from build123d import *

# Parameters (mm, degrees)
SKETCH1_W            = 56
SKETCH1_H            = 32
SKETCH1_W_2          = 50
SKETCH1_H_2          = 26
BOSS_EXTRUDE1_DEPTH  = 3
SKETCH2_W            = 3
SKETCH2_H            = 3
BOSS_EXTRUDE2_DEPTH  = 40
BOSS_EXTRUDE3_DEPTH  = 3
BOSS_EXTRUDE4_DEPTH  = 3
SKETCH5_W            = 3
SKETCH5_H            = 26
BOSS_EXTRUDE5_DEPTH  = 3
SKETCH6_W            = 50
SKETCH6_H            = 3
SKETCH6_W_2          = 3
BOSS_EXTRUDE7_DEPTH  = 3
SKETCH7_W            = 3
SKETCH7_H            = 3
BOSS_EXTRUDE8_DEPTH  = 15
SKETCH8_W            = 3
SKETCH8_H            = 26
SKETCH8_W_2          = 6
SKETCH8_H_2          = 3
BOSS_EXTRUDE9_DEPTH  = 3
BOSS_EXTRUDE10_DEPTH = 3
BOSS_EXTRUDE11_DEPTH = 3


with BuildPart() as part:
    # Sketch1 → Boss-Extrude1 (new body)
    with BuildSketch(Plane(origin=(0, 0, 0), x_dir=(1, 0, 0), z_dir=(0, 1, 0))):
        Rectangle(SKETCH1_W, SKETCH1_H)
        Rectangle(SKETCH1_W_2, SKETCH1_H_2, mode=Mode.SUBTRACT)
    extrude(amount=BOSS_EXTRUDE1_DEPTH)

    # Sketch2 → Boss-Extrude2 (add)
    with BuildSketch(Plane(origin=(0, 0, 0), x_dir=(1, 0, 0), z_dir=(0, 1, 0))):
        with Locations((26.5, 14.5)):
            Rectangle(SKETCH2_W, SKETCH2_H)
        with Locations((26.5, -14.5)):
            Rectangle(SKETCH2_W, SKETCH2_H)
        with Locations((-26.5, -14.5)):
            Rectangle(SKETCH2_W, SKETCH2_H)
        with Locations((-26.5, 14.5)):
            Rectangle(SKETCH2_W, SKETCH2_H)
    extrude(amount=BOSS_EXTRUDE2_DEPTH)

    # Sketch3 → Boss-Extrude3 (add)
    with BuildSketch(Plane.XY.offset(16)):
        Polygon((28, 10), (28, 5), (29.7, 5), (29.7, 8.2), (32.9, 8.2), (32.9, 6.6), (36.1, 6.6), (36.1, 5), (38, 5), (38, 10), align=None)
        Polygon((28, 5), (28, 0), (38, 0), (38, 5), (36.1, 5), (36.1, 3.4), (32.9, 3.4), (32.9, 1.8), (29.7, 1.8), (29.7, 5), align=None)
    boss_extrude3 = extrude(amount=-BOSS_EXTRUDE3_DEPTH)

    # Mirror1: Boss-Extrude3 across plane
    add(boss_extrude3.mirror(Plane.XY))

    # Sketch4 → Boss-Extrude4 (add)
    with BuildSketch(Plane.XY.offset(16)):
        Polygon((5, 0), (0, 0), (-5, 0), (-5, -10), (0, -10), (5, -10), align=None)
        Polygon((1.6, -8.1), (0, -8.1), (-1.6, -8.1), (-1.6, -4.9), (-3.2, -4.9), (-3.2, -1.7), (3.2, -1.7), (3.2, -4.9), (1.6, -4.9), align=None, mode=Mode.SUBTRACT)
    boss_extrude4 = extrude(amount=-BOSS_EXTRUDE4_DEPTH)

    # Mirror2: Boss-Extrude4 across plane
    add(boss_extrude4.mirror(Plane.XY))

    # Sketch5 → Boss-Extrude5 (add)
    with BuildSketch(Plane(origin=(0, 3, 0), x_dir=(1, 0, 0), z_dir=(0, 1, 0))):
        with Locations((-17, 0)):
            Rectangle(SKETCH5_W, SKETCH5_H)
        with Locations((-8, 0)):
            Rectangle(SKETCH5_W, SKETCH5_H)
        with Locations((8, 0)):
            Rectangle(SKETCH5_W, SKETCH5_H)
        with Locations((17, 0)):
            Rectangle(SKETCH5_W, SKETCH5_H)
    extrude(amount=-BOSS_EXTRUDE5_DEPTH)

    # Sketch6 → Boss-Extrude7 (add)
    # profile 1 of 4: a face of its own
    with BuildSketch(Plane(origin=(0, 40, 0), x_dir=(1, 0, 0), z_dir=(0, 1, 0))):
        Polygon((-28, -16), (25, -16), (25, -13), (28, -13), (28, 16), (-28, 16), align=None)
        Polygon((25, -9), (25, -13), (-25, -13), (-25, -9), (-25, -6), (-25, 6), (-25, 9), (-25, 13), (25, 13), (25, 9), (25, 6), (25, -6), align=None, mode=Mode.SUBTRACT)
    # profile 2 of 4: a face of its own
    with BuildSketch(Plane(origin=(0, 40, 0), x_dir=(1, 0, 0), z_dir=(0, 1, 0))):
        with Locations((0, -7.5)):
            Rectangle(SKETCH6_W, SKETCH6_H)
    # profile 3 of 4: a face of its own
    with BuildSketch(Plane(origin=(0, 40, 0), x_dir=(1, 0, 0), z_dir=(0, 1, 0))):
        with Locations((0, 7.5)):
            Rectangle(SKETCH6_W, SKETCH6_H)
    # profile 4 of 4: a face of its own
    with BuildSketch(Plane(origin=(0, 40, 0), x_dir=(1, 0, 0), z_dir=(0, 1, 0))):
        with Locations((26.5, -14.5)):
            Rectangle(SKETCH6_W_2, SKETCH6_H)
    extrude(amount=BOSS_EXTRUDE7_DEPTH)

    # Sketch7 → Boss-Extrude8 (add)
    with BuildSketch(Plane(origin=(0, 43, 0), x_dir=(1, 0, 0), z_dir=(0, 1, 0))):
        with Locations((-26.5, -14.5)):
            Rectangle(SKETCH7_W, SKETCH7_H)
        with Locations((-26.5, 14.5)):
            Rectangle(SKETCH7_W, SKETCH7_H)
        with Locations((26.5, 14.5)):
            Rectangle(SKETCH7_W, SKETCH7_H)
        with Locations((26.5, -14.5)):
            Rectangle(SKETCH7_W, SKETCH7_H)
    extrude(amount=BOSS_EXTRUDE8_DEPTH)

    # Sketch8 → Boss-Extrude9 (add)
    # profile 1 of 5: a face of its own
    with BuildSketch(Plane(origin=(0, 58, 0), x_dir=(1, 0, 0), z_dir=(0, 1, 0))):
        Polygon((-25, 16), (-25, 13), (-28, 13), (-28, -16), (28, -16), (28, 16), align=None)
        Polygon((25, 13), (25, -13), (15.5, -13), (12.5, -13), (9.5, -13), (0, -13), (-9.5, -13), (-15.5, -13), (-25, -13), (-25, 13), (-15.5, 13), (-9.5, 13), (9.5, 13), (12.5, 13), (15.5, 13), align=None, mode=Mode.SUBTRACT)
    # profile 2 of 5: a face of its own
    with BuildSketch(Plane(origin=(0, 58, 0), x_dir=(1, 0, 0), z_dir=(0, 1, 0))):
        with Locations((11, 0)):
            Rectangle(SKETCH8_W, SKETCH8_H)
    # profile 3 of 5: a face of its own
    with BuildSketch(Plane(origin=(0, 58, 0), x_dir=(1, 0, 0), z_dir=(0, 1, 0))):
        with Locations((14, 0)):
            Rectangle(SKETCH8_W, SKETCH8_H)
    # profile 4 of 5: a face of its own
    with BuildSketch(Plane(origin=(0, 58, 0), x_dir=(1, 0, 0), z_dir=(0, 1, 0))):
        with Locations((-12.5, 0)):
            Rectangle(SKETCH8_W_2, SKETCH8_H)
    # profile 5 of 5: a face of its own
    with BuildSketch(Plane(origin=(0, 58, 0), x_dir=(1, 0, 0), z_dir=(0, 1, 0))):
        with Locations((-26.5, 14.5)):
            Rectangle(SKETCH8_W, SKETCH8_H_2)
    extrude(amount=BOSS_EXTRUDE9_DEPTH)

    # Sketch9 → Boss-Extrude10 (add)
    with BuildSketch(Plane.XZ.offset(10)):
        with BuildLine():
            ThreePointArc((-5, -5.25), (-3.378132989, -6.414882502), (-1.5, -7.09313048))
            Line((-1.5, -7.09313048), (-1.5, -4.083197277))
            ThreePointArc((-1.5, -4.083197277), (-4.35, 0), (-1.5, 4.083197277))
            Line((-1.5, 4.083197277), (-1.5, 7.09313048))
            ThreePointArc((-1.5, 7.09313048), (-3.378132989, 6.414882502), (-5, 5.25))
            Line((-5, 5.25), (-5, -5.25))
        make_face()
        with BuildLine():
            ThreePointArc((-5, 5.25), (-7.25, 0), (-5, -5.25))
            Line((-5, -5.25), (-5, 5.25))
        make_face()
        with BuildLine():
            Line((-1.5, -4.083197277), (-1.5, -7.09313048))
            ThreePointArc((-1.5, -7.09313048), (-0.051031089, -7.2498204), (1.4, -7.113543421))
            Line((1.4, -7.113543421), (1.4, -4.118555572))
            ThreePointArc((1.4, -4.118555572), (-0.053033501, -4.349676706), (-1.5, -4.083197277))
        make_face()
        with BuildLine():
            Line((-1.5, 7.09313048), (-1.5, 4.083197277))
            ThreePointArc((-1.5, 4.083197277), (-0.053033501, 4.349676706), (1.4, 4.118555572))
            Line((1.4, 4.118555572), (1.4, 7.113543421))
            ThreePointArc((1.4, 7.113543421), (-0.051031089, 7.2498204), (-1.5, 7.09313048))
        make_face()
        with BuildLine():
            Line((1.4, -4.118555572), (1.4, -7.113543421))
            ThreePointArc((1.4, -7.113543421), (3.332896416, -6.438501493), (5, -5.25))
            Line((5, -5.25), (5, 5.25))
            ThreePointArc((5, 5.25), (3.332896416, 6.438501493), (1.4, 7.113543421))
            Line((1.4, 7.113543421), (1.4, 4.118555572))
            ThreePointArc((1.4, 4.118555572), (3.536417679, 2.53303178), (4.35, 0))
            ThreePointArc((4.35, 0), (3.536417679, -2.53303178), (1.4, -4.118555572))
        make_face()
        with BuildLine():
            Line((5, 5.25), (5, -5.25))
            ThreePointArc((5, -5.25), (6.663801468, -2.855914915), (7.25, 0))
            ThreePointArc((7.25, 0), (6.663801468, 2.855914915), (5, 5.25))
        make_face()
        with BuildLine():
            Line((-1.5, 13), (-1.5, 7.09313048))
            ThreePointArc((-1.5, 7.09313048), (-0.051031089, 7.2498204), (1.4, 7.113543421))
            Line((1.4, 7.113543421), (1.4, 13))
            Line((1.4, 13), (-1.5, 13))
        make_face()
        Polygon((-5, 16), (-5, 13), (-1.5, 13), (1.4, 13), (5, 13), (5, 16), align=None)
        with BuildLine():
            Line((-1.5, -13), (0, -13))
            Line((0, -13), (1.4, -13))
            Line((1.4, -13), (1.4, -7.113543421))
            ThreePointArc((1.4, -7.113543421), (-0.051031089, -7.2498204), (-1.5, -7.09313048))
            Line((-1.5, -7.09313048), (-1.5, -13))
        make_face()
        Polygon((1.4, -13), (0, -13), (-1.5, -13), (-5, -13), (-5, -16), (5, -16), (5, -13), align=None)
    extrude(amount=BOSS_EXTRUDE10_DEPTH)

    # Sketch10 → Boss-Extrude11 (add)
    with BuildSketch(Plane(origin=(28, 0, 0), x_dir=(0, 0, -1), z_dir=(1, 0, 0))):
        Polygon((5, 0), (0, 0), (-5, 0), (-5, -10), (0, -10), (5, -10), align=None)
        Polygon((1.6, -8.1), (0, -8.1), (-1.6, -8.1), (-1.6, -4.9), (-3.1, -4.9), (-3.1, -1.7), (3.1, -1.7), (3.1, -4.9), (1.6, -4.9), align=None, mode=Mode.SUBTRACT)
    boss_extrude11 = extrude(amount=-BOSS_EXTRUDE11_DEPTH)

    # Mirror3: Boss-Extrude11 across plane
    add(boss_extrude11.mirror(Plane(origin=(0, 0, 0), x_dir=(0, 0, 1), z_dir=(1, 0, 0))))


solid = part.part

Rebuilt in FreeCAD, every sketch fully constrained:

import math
import FreeCAD as App
import Part
import Sketcher

V = App.Vector

doc = App.newDocument("Part")
params = doc.addObject("Spreadsheet::Sheet", "Params")
for row, (alias, value) in enumerate([
    ("sketch1_width", "56 mm"),
    ("sketch1_width2", "50 mm"),
    ("sketch1_height", "32 mm"),
    ("sketch1_height2", "26 mm"),
    ("pad1_length", "3 mm"),
    ("sketch2_width", "3 mm"),
    ("pad2_length", "40 mm"),
    ("sketch3_width", "10 mm"),
    ("sketch3_width2", "3.2 mm"),
    ("sketch3_height", "1.6 mm"),
    ("pad3_length", "3 mm"),
    ("sketch4_width", "10 mm"),
    ("sketch4_width2", "3.2 mm"),
    ("sketch4_width3", "1.6 mm"),
    ("pad4_length", "3 mm"),
    ("sketch5_width", "3 mm"),
    ("sketch5_height", "26 mm"),
    ("pad5_length", "3 mm"),
    ("sketch6_width", "56 mm"),
    ("sketch6_width2", "50 mm"),
    ("sketch6_height", "32 mm"),
    ("sketch6_height2", "4 mm"),
    ("sketch6_height3", "12 mm"),
    ("pad6_length", "3 mm"),
    ("sketch7_width", "3 mm"),
    ("pad7_length", "15 mm"),
    ("sketch8_width", "56 mm"),
    ("sketch8_width2", "19 mm"),
    ("sketch8_height", "32 mm"),
    ("sketch8_height2", "26 mm"),
    ("sketch8_width3", "9.5 mm"),
    ("pad8_length", "3 mm"),
    ("sketch9_width", "10 mm"),
    ("sketch9_height", "3 mm"),
    ("sketch9_radius", "7.25 mm"),
    ("sketch9_radius2", "4.35 mm"),
    ("sketch9_width2", "3.5 mm"),
    ("pad9_length", "3 mm"),
    ("sketch10_width", "10 mm"),
    ("sketch10_width2", "3.2 mm"),
    ("sketch10_height", "1.5 mm"),
    ("pad10_length", "3 mm"),
], start=1):
    params.set(f"A{row}", alias)
    params.set(f"B{row}", "=" + value)
    params.setAlias(f"B{row}", alias)

body = doc.addObject("PartDesign::Body", "Body")

sketch1 = body.newObject("Sketcher::SketchObject", "Sketch")
sketch1.AttachmentSupport = (doc.getObject("XZ_Plane"), [""])
sketch1.MapMode = "FlatFace"
sketch1.addGeometry([
    Part.LineSegment(V(-28, -16, 0), V(-28, 16, 0)),
    Part.LineSegment(V(-28, 16, 0), V(28, 16, 0)),
    Part.LineSegment(V(28, 16, 0), V(28, -16, 0)),
    Part.LineSegment(V(28, -16, 0), V(-28, -16, 0)),
    Part.LineSegment(V(25, 13, 0), V(-25, 13, 0)),
    Part.LineSegment(V(-25, 13, 0), V(-25, -13, 0)),
    Part.LineSegment(V(-25, -13, 0), V(25, -13, 0)),
    Part.LineSegment(V(25, -13, 0), V(25, 13, 0)),
], False)
sketch1.addConstraint([
    Sketcher.Constraint("Coincident", 0, 2, 1, 1),
    Sketcher.Constraint("Coincident", 1, 2, 2, 1),
    Sketcher.Constraint("Coincident", 2, 2, 3, 1),
    Sketcher.Constraint("Coincident", 3, 2, 0, 1),
    Sketcher.Constraint("Coincident", 4, 2, 5, 1),
    Sketcher.Constraint("Coincident", 5, 2, 6, 1),
    Sketcher.Constraint("Coincident", 6, 2, 7, 1),
    Sketcher.Constraint("Coincident", 7, 2, 4, 1),
    Sketcher.Constraint("Vertical", 0),
    Sketcher.Constraint("Horizontal", 1),
    Sketcher.Constraint("Vertical", 2),
    Sketcher.Constraint("Horizontal", 3),
    Sketcher.Constraint("Horizontal", 4),
    Sketcher.Constraint("Vertical", 5),
    Sketcher.Constraint("Horizontal", 6),
    Sketcher.Constraint("Vertical", 7),
    Sketcher.Constraint("Symmetric", 0, 2, 2, 2, -1, 1),
    Sketcher.Constraint("Symmetric", 4, 2, 6, 2, -1, 1),
    Sketcher.Constraint("DistanceX", 1, 1, 1, 2, 56.0),
    Sketcher.Constraint("DistanceX", 4, 2, 4, 1, 50.0),
    Sketcher.Constraint("DistanceY", 0, 1, 0, 2, 32.0),
    Sketcher.Constraint("DistanceY", 5, 2, 5, 1, 26.0),
])
sketch1.setExpression("Constraints[18]", "Params.sketch1_width")
sketch1.setExpression("Constraints[19]", "Params.sketch1_width2")
sketch1.setExpression("Constraints[20]", "Params.sketch1_height")
sketch1.setExpression("Constraints[21]", "Params.sketch1_height2")
pad1 = body.newObject("PartDesign::Pad", "Pad")
pad1.Profile = sketch1
pad1.setExpression("Length", "Params.pad1_length")
pad1.Reversed = True

sketch2 = body.newObject("Sketcher::SketchObject", "Sketch001")
sketch2.AttachmentSupport = (doc.getObject("XZ_Plane"), [""])
sketch2.MapMode = "FlatFace"
sketch2.addGeometry([
    Part.LineSegment(V(25, -16, 0), V(25, -13, 0)),
    Part.LineSegment(V(25, -13, 0), V(28, -13, 0)),
    Part.LineSegment(V(28, -13, 0), V(28, -16, 0)),
    Part.LineSegment(V(28, -16, 0), V(25, -16, 0)),
    Part.LineSegment(V(25, 13, 0), V(25, 16, 0)),
    Part.LineSegment(V(25, 16, 0), V(28, 16, 0)),
    Part.LineSegment(V(28, 16, 0), V(28, 13, 0)),
    Part.LineSegment(V(28, 13, 0), V(25, 13, 0)),
    Part.LineSegment(V(-28, 13, 0), V(-28, 16, 0)),
    Part.LineSegment(V(-28, 16, 0), V(-25, 16, 0)),
    Part.LineSegment(V(-25, 16, 0), V(-25, 13, 0)),
    Part.LineSegment(V(-25, 13, 0), V(-28, 13, 0)),
    Part.LineSegment(V(-28, -16, 0), V(-28, -13, 0)),
    Part.LineSegment(V(-28, -13, 0), V(-25, -13, 0)),
    Part.LineSegment(V(-25, -13, 0), V(-25, -16, 0)),
    Part.LineSegment(V(-25, -16, 0), V(-28, -16, 0)),
], False)
sketch2.addConstraint([
    Sketcher.Constraint("Coincident", 0, 2, 1, 1),
    Sketcher.Constraint("Coincident", 1, 2, 2, 1),
    Sketcher.Constraint("Coincident", 2, 2, 3, 1),
    Sketcher.Constraint("Coincident", 3, 2, 0, 1),
    Sketcher.Constraint("Coincident", 4, 2, 5, 1),
    Sketcher.Constraint("Coincident", 5, 2, 6, 1),
    Sketcher.Constraint("Coincident", 6, 2, 7, 1),
    Sketcher.Constraint("Coincident", 7, 2, 4, 1),
    Sketcher.Constraint("Coincident", 8, 2, 9, 1),
    Sketcher.Constraint("Coincident", 9, 2, 10, 1),
    Sketcher.Constraint("Coincident", 10, 2, 11, 1),
    Sketcher.Constraint("Coincident", 11, 2, 8, 1),
    Sketcher.Constraint("Coincident", 12, 2, 13, 1),
    Sketcher.Constraint("Coincident", 13, 2, 14, 1),
    Sketcher.Constraint("Coincident", 14, 2, 15, 1),
    Sketcher.Constraint("Coincident", 15, 2, 12, 1),
    Sketcher.Constraint("Vertical", 0),
    Sketcher.Constraint("Horizontal", 1),
    Sketcher.Constraint("Vertical", 2),
    Sketcher.Constraint("Horizontal", 3),
    Sketcher.Constraint("Vertical", 4),
    Sketcher.Constraint("Horizontal", 5),
    Sketcher.Constraint("Vertical", 6),
    Sketcher.Constraint("Horizontal", 7),
    Sketcher.Constraint("Vertical", 8),
    Sketcher.Constraint("Horizontal", 9),
    Sketcher.Constraint("Vertical", 10),
    Sketcher.Constraint("Horizontal", 11),
    Sketcher.Constraint("Vertical", 12),
    Sketcher.Constraint("Horizontal", 13),
    Sketcher.Constraint("Vertical", 14),
    Sketcher.Constraint("Horizontal", 15),
    Sketcher.Constraint("Symmetric", 2, 2, 8, 2, -1, 1),
    Sketcher.Constraint("Symmetric", 0, 2, 10, 2, -1, 1),
    Sketcher.Constraint("Symmetric", 6, 2, 12, 2, -1, 1),
    Sketcher.Constraint("Symmetric", 4, 2, 14, 2, -1, 1),
    Sketcher.Constraint("Symmetric", 5, 2, 8, 2, -2),
    Sketcher.Constraint("Symmetric", 7, 2, 10, 2, -2),
    Sketcher.Constraint("Equal", 15, 0),
    Sketcher.Constraint("DistanceX", 1, 1, 1, 2, 3.0),
    Sketcher.Constraint("DistanceX", -1, 1, 0, 2, 25.0),
    Sketcher.Constraint("DistanceY", 0, 2, -1, 1, 13.0),
])
sketch2.setExpression("Constraints[39]", "Params.sketch2_width")
pad2 = body.newObject("PartDesign::Pad", "Pad001")
pad2.Profile = sketch2
pad2.setExpression("Length", "Params.pad2_length")
pad2.Reversed = True

sketch3 = body.newObject("Sketcher::SketchObject", "Sketch002")
sketch3.AttachmentSupport = (doc.getObject("XY_Plane"), [""])
sketch3.MapMode = "FlatFace"
sketch3.AttachmentOffset = App.Placement(V(0, 0, 16), App.Rotation())
sketch3.addGeometry([
    Part.LineSegment(V(28, 10, 0), V(28, 0, 0)),
    Part.LineSegment(V(28, 0, 0), V(38, 0, 0)),
    Part.LineSegment(V(38, 0, 0), V(38, 10, 0)),
    Part.LineSegment(V(38, 10, 0), V(28, 10, 0)),
    Part.LineSegment(V(29.7, 8.2, 0), V(32.9, 8.2, 0)),
    Part.LineSegment(V(32.9, 8.2, 0), V(32.9, 6.6, 0)),
    Part.LineSegment(V(32.9, 6.6, 0), V(36.1, 6.6, 0)),
    Part.LineSegment(V(36.1, 6.6, 0), V(36.1, 3.4, 0)),
    Part.LineSegment(V(36.1, 3.4, 0), V(32.9, 3.4, 0)),
    Part.LineSegment(V(32.9, 3.4, 0), V(32.9, 1.8, 0)),
    Part.LineSegment(V(32.9, 1.8, 0), V(29.7, 1.8, 0)),
    Part.LineSegment(V(29.7, 1.8, 0), V(29.7, 8.2, 0)),
], False)
sketch3.addConstraint([
    Sketcher.Constraint("Coincident", 0, 2, 1, 1),
    Sketcher.Constraint("Coincident", 1, 2, 2, 1),
    Sketcher.Constraint("Coincident", 2, 2, 3, 1),
    Sketcher.Constraint("Coincident", 3, 2, 0, 1),
    Sketcher.Constraint("Coincident", 4, 2, 5, 1),
    Sketcher.Constraint("Coincident", 5, 2, 6, 1),
    Sketcher.Constraint("Coincident", 6, 2, 7, 1),
    Sketcher.Constraint("Coincident", 7, 2, 8, 1),
    Sketcher.Constraint("Coincident", 8, 2, 9, 1),
    Sketcher.Constraint("Coincident", 9, 2, 10, 1),
    Sketcher.Constraint("Coincident", 10, 2, 11, 1),
    Sketcher.Constraint("Coincident", 11, 2, 4, 1),
    Sketcher.Constraint("Vertical", 0),
    Sketcher.Constraint("Horizontal", 1),
    Sketcher.Constraint("Vertical", 2),
    Sketcher.Constraint("Horizontal", 3),
    Sketcher.Constraint("Horizontal", 4),
    Sketcher.Constraint("Vertical", 5),
    Sketcher.Constraint("Horizontal", 6),
    Sketcher.Constraint("Vertical", 7),
    Sketcher.Constraint("Horizontal", 8),
    Sketcher.Constraint("Vertical", 9),
    Sketcher.Constraint("Horizontal", 10),
    Sketcher.Constraint("Vertical", 11),
    Sketcher.Constraint("PointOnObject", 0, 2, -1),
    Sketcher.Constraint("Vertical", 5, 2, 8, 2),
    Sketcher.Constraint("Equal", 4, 6),
    Sketcher.Constraint("Equal", 3, 0),
    Sketcher.Constraint("Equal", 10, 7),
    Sketcher.Constraint("Equal", 5, 9),
    Sketcher.Constraint("DistanceX", 1, 1, 1, 2, 10.0),
    Sketcher.Constraint("DistanceX", 4, 1, 4, 2, 3.2),
    Sketcher.Constraint("DistanceY", 5, 2, 5, 1, 1.6),
    Sketcher.Constraint("DistanceX", -1, 1, 0, 2, 28.0),
    Sketcher.Constraint("DistanceX", -1, 1, 4, 2, 32.9),
    Sketcher.Constraint("DistanceY", -1, 1, 4, 2, 8.2),
])
sketch3.setExpression("Constraints[30]", "Params.sketch3_width")
sketch3.setExpression("Constraints[31]", "Params.sketch3_width2")
sketch3.setExpression("Constraints[32]", "Params.sketch3_height")
pad3 = body.newObject("PartDesign::Pad", "Pad002")
pad3.Profile = sketch3
pad3.setExpression("Length", "Params.pad3_length")
pad3.Reversed = True
doc.recompute()

mirrored = body.newObject("PartDesign::Mirrored", "Mirrored")
mirrored.Originals = [pad3]
mirrored.MirrorPlane = (doc.getObject("XY_Plane"), [""])
body.Tip = mirrored

sketch4 = body.newObject("Sketcher::SketchObject", "Sketch003")
sketch4.AttachmentSupport = (doc.getObject("XY_Plane"), [""])
sketch4.MapMode = "FlatFace"
sketch4.AttachmentOffset = App.Placement(V(0, 0, 16), App.Rotation())
sketch4.addGeometry([
    Part.LineSegment(V(5, 0, 0), V(-5, 0, 0)),
    Part.LineSegment(V(-5, 0, 0), V(-5, -10, 0)),
    Part.LineSegment(V(-5, -10, 0), V(5, -10, 0)),
    Part.LineSegment(V(5, -10, 0), V(5, 0, 0)),
    Part.LineSegment(V(1.6, -4.9, 0), V(1.6, -8.1, 0)),
    Part.LineSegment(V(1.6, -8.1, 0), V(-1.6, -8.1, 0)),
    Part.LineSegment(V(-1.6, -8.1, 0), V(-1.6, -4.9, 0)),
    Part.LineSegment(V(-1.6, -4.9, 0), V(-3.2, -4.9, 0)),
    Part.LineSegment(V(-3.2, -4.9, 0), V(-3.2, -1.7, 0)),
    Part.LineSegment(V(-3.2, -1.7, 0), V(3.2, -1.7, 0)),
    Part.LineSegment(V(3.2, -1.7, 0), V(3.2, -4.9, 0)),
    Part.LineSegment(V(3.2, -4.9, 0), V(1.6, -4.9, 0)),
], False)
sketch4.addConstraint([
    Sketcher.Constraint("Coincident", 0, 2, 1, 1),
    Sketcher.Constraint("Coincident", 1, 2, 2, 1),
    Sketcher.Constraint("Coincident", 2, 2, 3, 1),
    Sketcher.Constraint("Coincident", 3, 2, 0, 1),
    Sketcher.Constraint("Coincident", 4, 2, 5, 1),
    Sketcher.Constraint("Coincident", 5, 2, 6, 1),
    Sketcher.Constraint("Coincident", 6, 2, 7, 1),
    Sketcher.Constraint("Coincident", 7, 2, 8, 1),
    Sketcher.Constraint("Coincident", 8, 2, 9, 1),
    Sketcher.Constraint("Coincident", 9, 2, 10, 1),
    Sketcher.Constraint("Coincident", 10, 2, 11, 1),
    Sketcher.Constraint("Coincident", 11, 2, 4, 1),
    Sketcher.Constraint("Horizontal", 0),
    Sketcher.Constraint("Vertical", 1),
    Sketcher.Constraint("Horizontal", 2),
    Sketcher.Constraint("Vertical", 3),
    Sketcher.Constraint("Vertical", 4),
    Sketcher.Constraint("Horizontal", 5),
    Sketcher.Constraint("Vertical", 6),
    Sketcher.Constraint("Horizontal", 7),
    Sketcher.Constraint("Vertical", 8),
    Sketcher.Constraint("Horizontal", 9),
    Sketcher.Constraint("Vertical", 10),
    Sketcher.Constraint("Horizontal", 11),
    Sketcher.Constraint("Symmetric", 0, 2, 3, 2, -1, 1),
    Sketcher.Constraint("Symmetric", 7, 2, 10, 2, -2),
    Sketcher.Constraint("Equal", 7, 11),
    Sketcher.Constraint("Equal", 2, 1),
    Sketcher.Constraint("Equal", 5, 4),
    Sketcher.Constraint("Equal", 6, 8),
    Sketcher.Constraint("DistanceX", 0, 2, 0, 1, 10.0),
    Sketcher.Constraint("DistanceX", 5, 2, 5, 1, 3.2),
    Sketcher.Constraint("DistanceX", 7, 2, 7, 1, 1.6),
    Sketcher.Constraint("DistanceY", 4, 2, -1, 1, 8.1),
])
sketch4.setExpression("Constraints[30]", "Params.sketch4_width")
sketch4.setExpression("Constraints[31]", "Params.sketch4_width2")
sketch4.setExpression("Constraints[32]", "Params.sketch4_width3")
pad4 = body.newObject("PartDesign::Pad", "Pad003")
pad4.Profile = sketch4
pad4.setExpression("Length", "Params.pad4_length")
pad4.Reversed = True
doc.recompute()

mirrored2 = body.newObject("PartDesign::Mirrored", "Mirrored001")
mirrored2.Originals = [pad4]
mirrored2.MirrorPlane = (doc.getObject("XY_Plane"), [""])
body.Tip = mirrored2

sketch5 = body.newObject("Sketcher::SketchObject", "Sketch004")
sketch5.AttachmentSupport = (doc.getObject("XZ_Plane"), [""])
sketch5.MapMode = "FlatFace"
sketch5.AttachmentOffset = App.Placement(V(0, 0, -3), App.Rotation())
sketch5.addGeometry([
    Part.LineSegment(V(-18.5, -13, 0), V(-18.5, 13, 0)),
    Part.LineSegment(V(-18.5, 13, 0), V(-15.5, 13, 0)),
    Part.LineSegment(V(-15.5, 13, 0), V(-15.5, -13, 0)),
    Part.LineSegment(V(-15.5, -13, 0), V(-18.5, -13, 0)),
    Part.LineSegment(V(-9.5, -13, 0), V(-9.5, 13, 0)),
    Part.LineSegment(V(-9.5, 13, 0), V(-6.5, 13, 0)),
    Part.LineSegment(V(-6.5, 13, 0), V(-6.5, -13, 0)),
    Part.LineSegment(V(-6.5, -13, 0), V(-9.5, -13, 0)),
    Part.LineSegment(V(6.5, -13, 0), V(6.5, 13, 0)),
    Part.LineSegment(V(6.5, 13, 0), V(9.5, 13, 0)),
    Part.LineSegment(V(9.5, 13, 0), V(9.5, -13, 0)),
    Part.LineSegment(V(9.5, -13, 0), V(6.5, -13, 0)),
    Part.LineSegment(V(15.5, -13, 0), V(15.5, 13, 0)),
    Part.LineSegment(V(15.5, 13, 0), V(18.5, 13, 0)),
    Part.LineSegment(V(18.5, 13, 0), V(18.5, -13, 0)),
    Part.LineSegment(V(18.5, -13, 0), V(15.5, -13, 0)),
], False)
sketch5.addConstraint([
    Sketcher.Constraint("Coincident", 0, 2, 1, 1),
    Sketcher.Constraint("Coincident", 1, 2, 2, 1),
    Sketcher.Constraint("Coincident", 2, 2, 3, 1),
    Sketcher.Constraint("Coincident", 3, 2, 0, 1),
    Sketcher.Constraint("Coincident", 4, 2, 5, 1),
    Sketcher.Constraint("Coincident", 5, 2, 6, 1),
    Sketcher.Constraint("Coincident", 6, 2, 7, 1),
    Sketcher.Constraint("Coincident", 7, 2, 4, 1),
    Sketcher.Constraint("Coincident", 8, 2, 9, 1),
    Sketcher.Constraint("Coincident", 9, 2, 10, 1),
    Sketcher.Constraint("Coincident", 10, 2, 11, 1),
    Sketcher.Constraint("Coincident", 11, 2, 8, 1),
    Sketcher.Constraint("Coincident", 12, 2, 13, 1),
    Sketcher.Constraint("Coincident", 13, 2, 14, 1),
    Sketcher.Constraint("Coincident", 14, 2, 15, 1),
    Sketcher.Constraint("Coincident", 15, 2, 12, 1),
    Sketcher.Constraint("Vertical", 0),
    Sketcher.Constraint("Horizontal", 1),
    Sketcher.Constraint("Vertical", 2),
    Sketcher.Constraint("Horizontal", 3),
    Sketcher.Constraint("Vertical", 4),
    Sketcher.Constraint("Horizontal", 5),
    Sketcher.Constraint("Vertical", 6),
    Sketcher.Constraint("Horizontal", 7),
    Sketcher.Constraint("Vertical", 8),
    Sketcher.Constraint("Horizontal", 9),
    Sketcher.Constraint("Vertical", 10),
    Sketcher.Constraint("Horizontal", 11),
    Sketcher.Constraint("Vertical", 12),
    Sketcher.Constraint("Horizontal", 13),
    Sketcher.Constraint("Vertical", 14),
    Sketcher.Constraint("Horizontal", 15),
    Sketcher.Constraint("Symmetric", 6, 2, 8, 2, -1, 1),
    Sketcher.Constraint("Symmetric", 4, 2, 10, 2, -1, 1),
    Sketcher.Constraint("Symmetric", 2, 2, 12, 2, -1, 1),
    Sketcher.Constraint("Symmetric", 0, 2, 14, 2, -1, 1),
    Sketcher.Constraint("Horizontal", 1, 2, 4, 2),
    Sketcher.Constraint("Horizontal", 3, 2, 6, 2),
    Sketcher.Constraint("Horizontal", 5, 2, 8, 2),
    Sketcher.Constraint("Equal", 3, 5),
    Sketcher.Constraint("DistanceX", 1, 1, 1, 2, 3.0),
    Sketcher.Constraint("DistanceY", 0, 1, 0, 2, 26.0),
    Sketcher.Constraint("DistanceX", 1, 2, 4, 2, 6.0),
    Sketcher.Constraint("DistanceX", 5, 2, 8, 2, 13.0),
])
sketch5.setExpression("Constraints[40]", "Params.sketch5_width")
sketch5.setExpression("Constraints[41]", "Params.sketch5_height")
pad5 = body.newObject("PartDesign::Pad", "Pad004")
pad5.Profile = sketch5
pad5.setExpression("Length", "Params.pad5_length")

sketch6 = body.newObject("Sketcher::SketchObject", "Sketch005")
sketch6.AttachmentSupport = (doc.getObject("XZ_Plane"), [""])
sketch6.MapMode = "FlatFace"
sketch6.AttachmentOffset = App.Placement(V(0, 0, -40), App.Rotation())
sketch6.addGeometry([
    Part.LineSegment(V(28, -16, 0), V(-28, -16, 0)),
    Part.LineSegment(V(-28, -16, 0), V(-28, 16, 0)),
    Part.LineSegment(V(-28, 16, 0), V(28, 16, 0)),
    Part.LineSegment(V(28, 16, 0), V(28, -16, 0)),
    Part.LineSegment(V(25, 9, 0), V(25, 13, 0)),
    Part.LineSegment(V(25, 13, 0), V(-25, 13, 0)),
    Part.LineSegment(V(-25, 13, 0), V(-25, 9, 0)),
    Part.LineSegment(V(-25, 9, 0), V(25, 9, 0)),
    Part.LineSegment(V(25, -6, 0), V(25, 6, 0)),
    Part.LineSegment(V(25, 6, 0), V(-25, 6, 0)),
    Part.LineSegment(V(-25, 6, 0), V(-25, -6, 0)),
    Part.LineSegment(V(-25, -6, 0), V(25, -6, 0)),
    Part.LineSegment(V(25, -13, 0), V(25, -9, 0)),
    Part.LineSegment(V(25, -9, 0), V(-25, -9, 0)),
    Part.LineSegment(V(-25, -9, 0), V(-25, -13, 0)),
    Part.LineSegment(V(-25, -13, 0), V(25, -13, 0)),
], False)
sketch6.addConstraint([
    Sketcher.Constraint("Coincident", 0, 2, 1, 1),
    Sketcher.Constraint("Coincident", 1, 2, 2, 1),
    Sketcher.Constraint("Coincident", 2, 2, 3, 1),
    Sketcher.Constraint("Coincident", 3, 2, 0, 1),
    Sketcher.Constraint("Coincident", 4, 2, 5, 1),
    Sketcher.Constraint("Coincident", 5, 2, 6, 1),
    Sketcher.Constraint("Coincident", 6, 2, 7, 1),
    Sketcher.Constraint("Coincident", 7, 2, 4, 1),
    Sketcher.Constraint("Coincident", 8, 2, 9, 1),
    Sketcher.Constraint("Coincident", 9, 2, 10, 1),
    Sketcher.Constraint("Coincident", 10, 2, 11, 1),
    Sketcher.Constraint("Coincident", 11, 2, 8, 1),
    Sketcher.Constraint("Coincident", 12, 2, 13, 1),
    Sketcher.Constraint("Coincident", 13, 2, 14, 1),
    Sketcher.Constraint("Coincident", 14, 2, 15, 1),
    Sketcher.Constraint("Coincident", 15, 2, 12, 1),
    Sketcher.Constraint("Horizontal", 0),
    Sketcher.Constraint("Vertical", 1),
    Sketcher.Constraint("Horizontal", 2),
    Sketcher.Constraint("Vertical", 3),
    Sketcher.Constraint("Vertical", 4),
    Sketcher.Constraint("Horizontal", 5),
    Sketcher.Constraint("Vertical", 6),
    Sketcher.Constraint("Horizontal", 7),
    Sketcher.Constraint("Vertical", 8),
    Sketcher.Constraint("Horizontal", 9),
    Sketcher.Constraint("Vertical", 10),
    Sketcher.Constraint("Horizontal", 11),
    Sketcher.Constraint("Vertical", 12),
    Sketcher.Constraint("Horizontal", 13),
    Sketcher.Constraint("Vertical", 14),
    Sketcher.Constraint("Horizontal", 15),
    Sketcher.Constraint("Symmetric", 0, 2, 2, 2, -1, 1),
    Sketcher.Constraint("Symmetric", 8, 2, 10, 2, -1, 1),
    Sketcher.Constraint("Symmetric", 6, 2, 12, 2, -1, 1),
    Sketcher.Constraint("Symmetric", 4, 2, 14, 2, -1, 1),
    Sketcher.Constraint("Vertical", 7, 2, 8, 2),
    Sketcher.Constraint("Vertical", 6, 2, 9, 2),
    Sketcher.Constraint("DistanceX", 0, 2, 0, 1, 56.0),
    Sketcher.Constraint("DistanceX", 5, 2, 5, 1, 50.0),
    Sketcher.Constraint("DistanceY", 1, 1, 1, 2, 32.0),
    Sketcher.Constraint("DistanceY", 4, 1, 4, 2, 4.0),
    Sketcher.Constraint("DistanceY", 8, 1, 8, 2, 12.0),
    Sketcher.Constraint("DistanceY", -1, 1, 4, 2, 13.0),
])
sketch6.setExpression("Constraints[38]", "Params.sketch6_width")
sketch6.setExpression("Constraints[39]", "Params.sketch6_width2")
sketch6.setExpression("Constraints[40]", "Params.sketch6_height")
sketch6.setExpression("Constraints[41]", "Params.sketch6_height2")
sketch6.setExpression("Constraints[42]", "Params.sketch6_height3")
pad6 = body.newObject("PartDesign::Pad", "Pad005")
pad6.Profile = sketch6
pad6.setExpression("Length", "Params.pad6_length")
pad6.Reversed = True

sketch7 = body.newObject("Sketcher::SketchObject", "Sketch006")
sketch7.AttachmentSupport = (doc.getObject("XZ_Plane"), [""])
sketch7.MapMode = "FlatFace"
sketch7.AttachmentOffset = App.Placement(V(0, 0, -43), App.Rotation())
sketch7.addGeometry([
    Part.LineSegment(V(-28, 13, 0), V(-28, 16, 0)),
    Part.LineSegment(V(-28, 16, 0), V(-25, 16, 0)),
    Part.LineSegment(V(-25, 16, 0), V(-25, 13, 0)),
    Part.LineSegment(V(-25, 13, 0), V(-28, 13, 0)),
    Part.LineSegment(V(-28, -16, 0), V(-28, -13, 0)),
    Part.LineSegment(V(-28, -13, 0), V(-25, -13, 0)),
    Part.LineSegment(V(-25, -13, 0), V(-25, -16, 0)),
    Part.LineSegment(V(-25, -16, 0), V(-28, -16, 0)),
    Part.LineSegment(V(25, -16, 0), V(25, -13, 0)),
    Part.LineSegment(V(25, -13, 0), V(28, -13, 0)),
    Part.LineSegment(V(28, -13, 0), V(28, -16, 0)),
    Part.LineSegment(V(28, -16, 0), V(25, -16, 0)),
    Part.LineSegment(V(25, 13, 0), V(25, 16, 0)),
    Part.LineSegment(V(25, 16, 0), V(28, 16, 0)),
    Part.LineSegment(V(28, 16, 0), V(28, 13, 0)),
    Part.LineSegment(V(28, 13, 0), V(25, 13, 0)),
], False)
sketch7.addConstraint([
    Sketcher.Constraint("Coincident", 0, 2, 1, 1),
    Sketcher.Constraint("Coincident", 1, 2, 2, 1),
    Sketcher.Constraint("Coincident", 2, 2, 3, 1),
    Sketcher.Constraint("Coincident", 3, 2, 0, 1),
    Sketcher.Constraint("Coincident", 4, 2, 5, 1),
    Sketcher.Constraint("Coincident", 5, 2, 6, 1),
    Sketcher.Constraint("Coincident", 6, 2, 7, 1),
    Sketcher.Constraint("Coincident", 7, 2, 4, 1),
    Sketcher.Constraint("Coincident", 8, 2, 9, 1),
    Sketcher.Constraint("Coincident", 9, 2, 10, 1),
    Sketcher.Constraint("Coincident", 10, 2, 11, 1),
    Sketcher.Constraint("Coincident", 11, 2, 8, 1),
    Sketcher.Constraint("Coincident", 12, 2, 13, 1),
    Sketcher.Constraint("Coincident", 13, 2, 14, 1),
    Sketcher.Constraint("Coincident", 14, 2, 15, 1),
    Sketcher.Constraint("Coincident", 15, 2, 12, 1),
    Sketcher.Constraint("Vertical", 0),
    Sketcher.Constraint("Horizontal", 1),
    Sketcher.Constraint("Vertical", 2),
    Sketcher.Constraint("Horizontal", 3),
    Sketcher.Constraint("Vertical", 4),
    Sketcher.Constraint("Horizontal", 5),
    Sketcher.Constraint("Vertical", 6),
    Sketcher.Constraint("Horizontal", 7),
    Sketcher.Constraint("Vertical", 8),
    Sketcher.Constraint("Horizontal", 9),
    Sketcher.Constraint("Vertical", 10),
    Sketcher.Constraint("Horizontal", 11),
    Sketcher.Constraint("Vertical", 12),
    Sketcher.Constraint("Horizontal", 13),
    Sketcher.Constraint("Vertical", 14),
    Sketcher.Constraint("Horizontal", 15),
    Sketcher.Constraint("Symmetric", 2, 2, 8, 2, -1, 1),
    Sketcher.Constraint("Symmetric", 0, 2, 10, 2, -1, 1),
    Sketcher.Constraint("Symmetric", 6, 2, 12, 2, -1, 1),
    Sketcher.Constraint("Symmetric", 4, 2, 14, 2, -1, 1),
    Sketcher.Constraint("Symmetric", 5, 2, 8, 2, -2),
    Sketcher.Constraint("Symmetric", 7, 2, 10, 2, -2),
    Sketcher.Constraint("Equal", 15, 0),
    Sketcher.Constraint("DistanceX", 1, 1, 1, 2, 3.0),
    Sketcher.Constraint("DistanceX", 0, 2, -1, 1, 28.0),
    Sketcher.Constraint("DistanceY", -1, 1, 0, 2, 16.0),
])
sketch7.setExpression("Constraints[39]", "Params.sketch7_width")
pad7 = body.newObject("PartDesign::Pad", "Pad006")
pad7.Profile = sketch7
pad7.setExpression("Length", "Params.pad7_length")
pad7.Reversed = True

sketch8 = body.newObject("Sketcher::SketchObject", "Sketch007")
sketch8.AttachmentSupport = (doc.getObject("XZ_Plane"), [""])
sketch8.MapMode = "FlatFace"
sketch8.AttachmentOffset = App.Placement(V(0, 0, -58), App.Rotation())
sketch8.addGeometry([
    Part.LineSegment(V(28, 16, 0), V(28, -16, 0)),
    Part.LineSegment(V(28, -16, 0), V(-28, -16, 0)),
    Part.LineSegment(V(-28, -16, 0), V(-28, 16, 0)),
    Part.LineSegment(V(-28, 16, 0), V(28, 16, 0)),
    Part.LineSegment(V(-25, 13, 0), V(-25, -13, 0)),
    Part.LineSegment(V(-25, -13, 0), V(-16, -13, 0)),
    Part.LineSegment(V(-16, -13, 0), V(-16, 13, 0)),
    Part.LineSegment(V(-16, 13, 0), V(-25, 13, 0)),
    Part.LineSegment(V(10, 13, 0), V(-10, 13, 0)),
    Part.LineSegment(V(-10, 13, 0), V(-10, -13, 0)),
    Part.LineSegment(V(-10, -13, 0), V(10, -13, 0)),
    Part.LineSegment(V(10, -13, 0), V(10, 13, 0)),
    Part.LineSegment(V(25, 13, 0), V(16, 13, 0)),
    Part.LineSegment(V(16, 13, 0), V(16, -13, 0)),
    Part.LineSegment(V(16, -13, 0), V(25, -13, 0)),
    Part.LineSegment(V(25, -13, 0), V(25, 13, 0)),
], False)
sketch8.addConstraint([
    Sketcher.Constraint("Coincident", 0, 2, 1, 1),
    Sketcher.Constraint("Coincident", 1, 2, 2, 1),
    Sketcher.Constraint("Coincident", 2, 2, 3, 1),
    Sketcher.Constraint("Coincident", 3, 2, 0, 1),
    Sketcher.Constraint("Coincident", 4, 2, 5, 1),
    Sketcher.Constraint("Coincident", 5, 2, 6, 1),
    Sketcher.Constraint("Coincident", 6, 2, 7, 1),
    Sketcher.Constraint("Coincident", 7, 2, 4, 1),
    Sketcher.Constraint("Coincident", 8, 2, 9, 1),
    Sketcher.Constraint("Coincident", 9, 2, 10, 1),
    Sketcher.Constraint("Coincident", 10, 2, 11, 1),
    Sketcher.Constraint("Coincident", 11, 2, 8, 1),
    Sketcher.Constraint("Coincident", 12, 2, 13, 1),
    Sketcher.Constraint("Coincident", 13, 2, 14, 1),
    Sketcher.Constraint("Coincident", 14, 2, 15, 1),
    Sketcher.Constraint("Coincident", 15, 2, 12, 1),
    Sketcher.Constraint("Vertical", 0),
    Sketcher.Constraint("Horizontal", 1),
    Sketcher.Constraint("Vertical", 2),
    Sketcher.Constraint("Horizontal", 3),
    Sketcher.Constraint("Vertical", 4),
    Sketcher.Constraint("Horizontal", 5),
    Sketcher.Constraint("Vertical", 6),
    Sketcher.Constraint("Horizontal", 7),
    Sketcher.Constraint("Horizontal", 8),
    Sketcher.Constraint("Vertical", 9),
    Sketcher.Constraint("Horizontal", 10),
    Sketcher.Constraint("Vertical", 11),
    Sketcher.Constraint("Horizontal", 12),
    Sketcher.Constraint("Vertical", 13),
    Sketcher.Constraint("Horizontal", 14),
    Sketcher.Constraint("Vertical", 15),
    Sketcher.Constraint("Symmetric", 0, 2, 2, 2, -1, 1),
    Sketcher.Constraint("Symmetric", 8, 2, 10, 2, -1, 1),
    Sketcher.Constraint("Symmetric", 5, 2, 12, 2, -1, 1),
    Sketcher.Constraint("Symmetric", 7, 2, 14, 2, -1, 1),
    Sketcher.Constraint("Horizontal", 7, 2, 8, 2),
    Sketcher.Constraint("Horizontal", 5, 2, 9, 2),
    Sketcher.Constraint("DistanceX", 1, 2, 1, 1, 56.0),
    Sketcher.Constraint("DistanceX", 8, 2, 8, 1, 19.0),
    Sketcher.Constraint("DistanceY", 0, 2, 0, 1, 32.0),
    Sketcher.Constraint("DistanceY", 4, 2, 4, 1, 26.0),
    Sketcher.Constraint("DistanceX", 5, 1, 5, 2, 9.5),
    Sketcher.Constraint("DistanceX", 4, 2, -1, 1, 25.0),
])
sketch8.setExpression("Constraints[38]", "Params.sketch8_width")
sketch8.setExpression("Constraints[39]", "Params.sketch8_width2")
sketch8.setExpression("Constraints[40]", "Params.sketch8_height")
sketch8.setExpression("Constraints[41]", "Params.sketch8_height2")
sketch8.setExpression("Constraints[42]", "Params.sketch8_width3")
pad8 = body.newObject("PartDesign::Pad", "Pad007")
pad8.Profile = sketch8
pad8.setExpression("Length", "Params.pad8_length")
pad8.Reversed = True

sketch9 = body.newObject("Sketcher::SketchObject", "Sketch008")
sketch9.AttachmentSupport = (doc.getObject("XZ_Plane"), [""])
sketch9.MapMode = "FlatFace"
sketch9.AttachmentOffset = App.Placement(V(0, 0, 10), App.Rotation())
sketch9.addGeometry([
    Part.ArcOfCircle(Part.Circle(V(0, 0, 0), V(0, 0, 1), 7.2), math.radians(102), math.radians(134)),
    Part.ArcOfCircle(Part.Circle(V(0, 0, 0), V(0, 0, 1), 7.2), math.radians(134), math.radians(226)),
    Part.ArcOfCircle(Part.Circle(V(0, 0, 0), V(0, 0, 1), 7.2), math.radians(-134), math.radians(-102)),
    Part.LineSegment(V(-1.5, -7.1, 0), V(-1.5, -13, 0)),
    Part.LineSegment(V(-1.5, -13, 0), V(-5, -13, 0)),
    Part.LineSegment(V(-5, -13, 0), V(-5, -16, 0)),
    Part.LineSegment(V(-5, -16, 0), V(5, -16, 0)),
    Part.LineSegment(V(5, -16, 0), V(5, -13, 0)),
    Part.LineSegment(V(5, -13, 0), V(1.4, -13, 0)),
    Part.LineSegment(V(1.4, -13, 0), V(1.4, -7.1, 0)),
    Part.ArcOfCircle(Part.Circle(V(0, 0, 0), V(0, 0, 1), 7.3), math.radians(-79), math.radians(-46)),
    Part.ArcOfCircle(Part.Circle(V(0, 0, 0), V(0, 0, 1), 7.2), math.radians(-46), math.radians(0)),
    Part.ArcOfCircle(Part.Circle(V(0, 0, 0), V(0, 0, 1), 7.2), math.radians(0), math.radians(46)),
    Part.ArcOfCircle(Part.Circle(V(0, 0, 0), V(0, 0, 1), 7.3), math.radians(46), math.radians(79)),
    Part.LineSegment(V(1.4, 7.1, 0), V(1.4, 13, 0)),
    Part.LineSegment(V(1.4, 13, 0), V(5, 13, 0)),
    Part.LineSegment(V(5, 13, 0), V(5, 16, 0)),
    Part.LineSegment(V(5, 16, 0), V(-5, 16, 0)),
    Part.LineSegment(V(-5, 16, 0), V(-5, 13, 0)),
    Part.LineSegment(V(-5, 13, 0), V(-1.5, 13, 0)),
    Part.LineSegment(V(-1.5, 13, 0), V(-1.5, 7.1, 0)),
    Part.ArcOfCircle(Part.Circle(V(0, 0, 0), V(0, 0, 1), 4.4), math.radians(110), math.radians(250)),
    Part.ArcOfCircle(Part.Circle(V(0, 0, 0), V(0, 0, 1), 4.4), math.radians(71), math.radians(110)),
    Part.ArcOfCircle(Part.Circle(V(0, 0, 0), V(0, 0, 1), 4.3), math.radians(0), math.radians(71)),
    Part.ArcOfCircle(Part.Circle(V(0, 0, 0), V(0, 0, 1), 4.3), math.radians(-71), math.radians(0)),
    Part.ArcOfCircle(Part.Circle(V(0, 0, 0), V(0, 0, 1), 4.4), math.radians(-110), math.radians(-71)),
], False)
sketch9.addConstraint([
    Sketcher.Constraint("Tangent", 0, 2, 1, 1),
    Sketcher.Constraint("Tangent", 1, 2, 2, 1),
    Sketcher.Constraint("Coincident", 2, 2, 3, 1),
    Sketcher.Constraint("Coincident", 3, 2, 4, 1),
    Sketcher.Constraint("Coincident", 4, 2, 5, 1),
    Sketcher.Constraint("Coincident", 5, 2, 6, 1),
    Sketcher.Constraint("Coincident", 6, 2, 7, 1),
    Sketcher.Constraint("Coincident", 7, 2, 8, 1),
    Sketcher.Constraint("Coincident", 8, 2, 9, 1),
    Sketcher.Constraint("Coincident", 9, 2, 10, 1),
    Sketcher.Constraint("Tangent", 10, 2, 11, 1),
    Sketcher.Constraint("Tangent", 11, 2, 12, 1),
    Sketcher.Constraint("Tangent", 12, 2, 13, 1),
    Sketcher.Constraint("Coincident", 13, 2, 14, 1),
    Sketcher.Constraint("Coincident", 14, 2, 15, 1),
    Sketcher.Constraint("Coincident", 15, 2, 16, 1),
    Sketcher.Constraint("Coincident", 16, 2, 17, 1),
    Sketcher.Constraint("Coincident", 17, 2, 18, 1),
    Sketcher.Constraint("Coincident", 18, 2, 19, 1),
    Sketcher.Constraint("Coincident", 19, 2, 20, 1),
    Sketcher.Constraint("Coincident", 20, 2, 0, 1),
    Sketcher.Constraint("Tangent", 21, 1, 22, 2),
    Sketcher.Constraint("Tangent", 22, 1, 23, 2),
    Sketcher.Constraint("Tangent", 23, 1, 24, 2),
    Sketcher.Constraint("Tangent", 24, 1, 25, 2),
    Sketcher.Constraint("Tangent", 25, 1, 21, 2),
    Sketcher.Constraint("Vertical", 3),
    Sketcher.Constraint("Horizontal", 4),
    Sketcher.Constraint("Vertical", 5),
    Sketcher.Constraint("Horizontal", 6),
    Sketcher.Constraint("Vertical", 7),
    Sketcher.Constraint("Horizontal", 8),
    Sketcher.Constraint("Vertical", 9),
    Sketcher.Constraint("Vertical", 14),
    Sketcher.Constraint("Horizontal", 15),
    Sketcher.Constraint("Vertical", 16),
    Sketcher.Constraint("Horizontal", 17),
    Sketcher.Constraint("Vertical", 18),
    Sketcher.Constraint("Horizontal", 19),
    Sketcher.Constraint("Vertical", 20),
    Sketcher.Constraint("Coincident", 0, 3, -1, 1),
    Sketcher.Constraint("Coincident", 2, 3, -1, 1),
    Sketcher.Constraint("Coincident", 10, 3, -1, 1),
    Sketcher.Constraint("Coincident", 12, 3, -1, 1),
    Sketcher.Constraint("Coincident", 21, 3, -1, 1),
    Sketcher.Constraint("Coincident", 23, 3, -1, 1),
    Sketcher.Constraint("Equal", 2, 10),
    Sketcher.Constraint("Equal", 12, 13),
    Sketcher.Constraint("Symmetric", 4, 2, 15, 2, -1, 1),
    Sketcher.Constraint("Symmetric", 6, 2, 17, 2, -1, 1),
    Sketcher.Constraint("Symmetric", 4, 2, 7, 2, -2),
    Sketcher.Constraint("Symmetric", 3, 2, 19, 2, -1),
    Sketcher.Constraint("PointOnObject", 11, 2, -1),
    Sketcher.Constraint("PointOnObject", 23, 1, -1),
    Sketcher.Constraint("Horizontal", 1, 2, 10, 2),
    Sketcher.Constraint("Horizontal", 0, 2, 12, 2),
    Sketcher.Constraint("Vertical", 0, 2, 1, 2),
    Sketcher.Constraint("Vertical", 1, 2, 4, 2),
    Sketcher.Constraint("Vertical", 9, 2, 13, 2),
    Sketcher.Constraint("Vertical", 20, 2, 21, 1),
    Sketcher.Constraint("Vertical", 14, 2, 22, 1),
    Sketcher.Constraint("Vertical", 22, 1, 24, 1),
    Sketcher.Constraint("Vertical", 21, 1, 25, 1),
    Sketcher.Constraint("DistanceX", 6, 1, 6, 2, 10.0),
    Sketcher.Constraint("DistanceY", 5, 2, 5, 1, 3.0),
    Sketcher.Constraint("Radius", 0, 7.25),
    Sketcher.Constraint("Radius", 21, 4.35),
    Sketcher.Constraint("DistanceX", 4, 2, 4, 1, 3.5),
    Sketcher.Constraint("DistanceX", 8, 2, 8, 1, 3.6),
    Sketcher.Constraint("DistanceY", 3, 2, -1, 1, 13.0),
])
sketch9.setExpression("Constraints[63]", "Params.sketch9_width")
sketch9.setExpression("Constraints[64]", "Params.sketch9_height")
sketch9.setExpression("Constraints[65]", "Params.sketch9_radius")
sketch9.setExpression("Constraints[66]", "Params.sketch9_radius2")
sketch9.setExpression("Constraints[67]", "Params.sketch9_width2")
pad9 = body.newObject("PartDesign::Pad", "Pad008")
pad9.Profile = sketch9
pad9.setExpression("Length", "Params.pad9_length")

sketch10 = body.newObject("Sketcher::SketchObject", "Sketch009")
sketch10.AttachmentSupport = (doc.getObject("YZ_Plane"), [""])
sketch10.MapMode = "FlatFace"
sketch10.AttachmentOffset = App.Placement(V(0, 0, 28), App.Rotation())
sketch10.addGeometry([
    Part.LineSegment(V(0, -5, 0), V(0, 5, 0)),
    Part.LineSegment(V(0, 5, 0), V(-10, 5, 0)),
    Part.LineSegment(V(-10, 5, 0), V(-10, -5, 0)),
    Part.LineSegment(V(-10, -5, 0), V(0, -5, 0)),
    Part.LineSegment(V(-4.9, -1.6, 0), V(-8.1, -1.6, 0)),
    Part.LineSegment(V(-8.1, -1.6, 0), V(-8.1, 1.6, 0)),
    Part.LineSegment(V(-8.1, 1.6, 0), V(-4.9, 1.6, 0)),
    Part.LineSegment(V(-4.9, 1.6, 0), V(-4.9, 3.1, 0)),
    Part.LineSegment(V(-4.9, 3.1, 0), V(-1.7, 3.1, 0)),
    Part.LineSegment(V(-1.7, 3.1, 0), V(-1.7, -3.1, 0)),
    Part.LineSegment(V(-1.7, -3.1, 0), V(-4.9, -3.1, 0)),
    Part.LineSegment(V(-4.9, -3.1, 0), V(-4.9, -1.6, 0)),
], False)
sketch10.addConstraint([
    Sketcher.Constraint("Coincident", 0, 2, 1, 1),
    Sketcher.Constraint("Coincident", 1, 2, 2, 1),
    Sketcher.Constraint("Coincident", 2, 2, 3, 1),
    Sketcher.Constraint("Coincident", 3, 2, 0, 1),
    Sketcher.Constraint("Coincident", 4, 2, 5, 1),
    Sketcher.Constraint("Coincident", 5, 2, 6, 1),
    Sketcher.Constraint("Coincident", 6, 2, 7, 1),
    Sketcher.Constraint("Coincident", 7, 2, 8, 1),
    Sketcher.Constraint("Coincident", 8, 2, 9, 1),
    Sketcher.Constraint("Coincident", 9, 2, 10, 1),
    Sketcher.Constraint("Coincident", 10, 2, 11, 1),
    Sketcher.Constraint("Coincident", 11, 2, 4, 1),
    Sketcher.Constraint("Vertical", 0),
    Sketcher.Constraint("Horizontal", 1),
    Sketcher.Constraint("Vertical", 2),
    Sketcher.Constraint("Horizontal", 3),
    Sketcher.Constraint("Horizontal", 4),
    Sketcher.Constraint("Vertical", 5),
    Sketcher.Constraint("Horizontal", 6),
    Sketcher.Constraint("Vertical", 7),
    Sketcher.Constraint("Horizontal", 8),
    Sketcher.Constraint("Vertical", 9),
    Sketcher.Constraint("Horizontal", 10),
    Sketcher.Constraint("Vertical", 11),
    Sketcher.Constraint("Symmetric", 0, 2, 3, 2, -1, 1),
    Sketcher.Constraint("Symmetric", 7, 2, 10, 2, -1),
    Sketcher.Constraint("Equal", 6, 8),
    Sketcher.Constraint("Equal", 3, 0),
    Sketcher.Constraint("Equal", 10, 5),
    Sketcher.Constraint("Equal", 7, 11),
    Sketcher.Constraint("DistanceX", 1, 2, 1, 1, 10.0),
    Sketcher.Constraint("DistanceX", 4, 2, 4, 1, 3.2),
    Sketcher.Constraint("DistanceY", 7, 1, 7, 2, 1.5),
    Sketcher.Constraint("DistanceX", 4, 2, -1, 1, 8.1),
])
sketch10.setExpression("Constraints[30]", "Params.sketch10_width")
sketch10.setExpression("Constraints[31]", "Params.sketch10_width2")
sketch10.setExpression("Constraints[32]", "Params.sketch10_height")
pad10 = body.newObject("PartDesign::Pad", "Pad009")
pad10.Profile = sketch10
pad10.setExpression("Length", "Params.pad10_length")
pad10.Reversed = True
doc.recompute()

mirrored3 = body.newObject("PartDesign::Mirrored", "Mirrored002")
mirrored3.Originals = [pad10]
mirrored3.MirrorPlane = (doc.getObject("YZ_Plane"), [""])
body.Tip = mirrored3

doc.recompute()
